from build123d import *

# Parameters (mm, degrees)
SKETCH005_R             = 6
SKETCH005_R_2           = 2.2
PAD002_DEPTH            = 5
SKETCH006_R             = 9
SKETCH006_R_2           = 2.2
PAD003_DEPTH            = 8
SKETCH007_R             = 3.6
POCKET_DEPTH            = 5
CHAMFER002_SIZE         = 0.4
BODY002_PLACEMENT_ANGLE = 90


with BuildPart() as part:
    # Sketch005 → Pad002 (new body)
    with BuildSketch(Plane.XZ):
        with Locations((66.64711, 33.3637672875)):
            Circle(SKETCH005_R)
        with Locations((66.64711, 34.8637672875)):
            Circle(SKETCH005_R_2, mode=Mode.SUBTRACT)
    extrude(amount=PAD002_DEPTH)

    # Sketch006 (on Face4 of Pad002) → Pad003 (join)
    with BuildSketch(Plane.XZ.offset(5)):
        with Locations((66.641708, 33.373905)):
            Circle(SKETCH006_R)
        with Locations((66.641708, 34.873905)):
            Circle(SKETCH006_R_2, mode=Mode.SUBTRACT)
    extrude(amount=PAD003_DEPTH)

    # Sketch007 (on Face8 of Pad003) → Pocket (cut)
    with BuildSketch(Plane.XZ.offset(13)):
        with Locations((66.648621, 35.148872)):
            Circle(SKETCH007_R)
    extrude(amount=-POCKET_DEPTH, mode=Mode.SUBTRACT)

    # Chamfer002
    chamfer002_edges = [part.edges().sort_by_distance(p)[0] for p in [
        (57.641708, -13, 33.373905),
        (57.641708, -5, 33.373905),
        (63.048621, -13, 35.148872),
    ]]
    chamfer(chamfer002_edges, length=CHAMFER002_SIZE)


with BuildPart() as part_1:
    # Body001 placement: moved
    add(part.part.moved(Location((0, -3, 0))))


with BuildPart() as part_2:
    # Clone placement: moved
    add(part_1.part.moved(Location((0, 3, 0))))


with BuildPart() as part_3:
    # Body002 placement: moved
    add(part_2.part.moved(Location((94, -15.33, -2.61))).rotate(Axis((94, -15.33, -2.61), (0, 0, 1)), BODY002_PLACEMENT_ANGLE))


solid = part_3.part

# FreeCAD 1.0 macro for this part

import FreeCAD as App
import Part
import Sketcher


def edges_at(feature, points):
    """Names of the edges that pass closest to the given points."""
    edges = feature.Shape.Edges
    near = lambda p: min(range(len(edges)), key=lambda i: edges[i].distToShape(Part.Vertex(*p))[0])
    return sorted({f"Edge{near(p) + 1}" for p in points})

doc = App.newDocument("Part")
body = doc.addObject("PartDesign::Body", "Body")

# Sketch on XZ plane
sketch1 = doc.addObject("Sketcher::SketchObject", "Sketch")
body.addObject(sketch1)
sketch1.AttachmentSupport = (doc.XZ_Plane, [""])
sketch1.MapMode = "FlatFace"
sketch1.addGeometry([
    Part.Circle(App.Vector(66.6, 33.4, 0), App.Vector(0, 0, 1), 6),
    Part.Circle(App.Vector(66.6, 34.9, 0), App.Vector(0, 0, 1), 2.2),
], False)
sketch1.addConstraint([
    Sketcher.Constraint("Vertical", 0, 3, 1, 3),
    Sketcher.Constraint("Diameter", 0, 12.0),
    Sketcher.Constraint("Diameter", 1, 4.4),
    Sketcher.Constraint("DistanceY", 0, 3, 1, 3, 1.5),
    Sketcher.Constraint("DistanceX", -1, 1, 0, 3, 66.64711),
    Sketcher.Constraint("DistanceY", -1, 1, 0, 3, 33.363767),
])
pad1 = doc.addObject("PartDesign::Pad", "Pad")
body.addObject(pad1)
pad1.Profile = sketch1
pad1.Length = 5

# Sketch on XZ plane
sketch2 = doc.addObject("Sketcher::SketchObject", "Sketch001")
body.addObject(sketch2)
sketch2.AttachmentSupport = (doc.XZ_Plane, [""])
sketch2.MapMode = "FlatFace"
sketch2.AttachmentOffset = App.Placement(App.Vector(0, 0, 5), App.Rotation())
sketch2.addGeometry([
    Part.Circle(App.Vector(66.6, 33.4, 0), App.Vector(0, 0, 1), 9),
    Part.Circle(App.Vector(66.6, 34.9, 0), App.Vector(0, 0, 1), 2.2),
], False)
sketch2.addConstraint([
    Sketcher.Constraint("Vertical", 0, 3, 1, 3),
    Sketcher.Constraint("Diameter", 0, 18.0),
    Sketcher.Constraint("Diameter", 1, 4.4),
    Sketcher.Constraint("DistanceY", 0, 3, 1, 3, 1.5),
    Sketcher.Constraint("DistanceX", -1, 1, 0, 3, 66.641708),
    Sketcher.Constraint("DistanceY", -1, 1, 0, 3, 33.373905),
])
pad2 = doc.addObject("PartDesign::Pad", "Pad001")
body.addObject(pad2)
pad2.Profile = sketch2
pad2.Length = 8

# Sketch on XZ plane
sketch3 = doc.addObject("Sketcher::SketchObject", "Sketch002")
body.addObject(sketch3)
sketch3.AttachmentSupport = (doc.XZ_Plane, [""])
sketch3.MapMode = "FlatFace"
sketch3.AttachmentOffset = App.Placement(App.Vector(0, 0, 13), App.Rotation())
sketch3.addGeometry(Part.Circle(App.Vector(66.6, 35.1, 0), App.Vector(0, 0, 1), 3.6), False)
sketch3.addConstraint([
    Sketcher.Constraint("Diameter", 0, 7.2),
    Sketcher.Constraint("DistanceX", -1, 1, 0, 3, 66.648621),
    Sketcher.Constraint("DistanceY", -1, 1, 0, 3, 35.148872),
])
pocket1 = doc.addObject("PartDesign::Pocket", "Pocket")
body.addObject(pocket1)
pocket1.Profile = sketch3
pocket1.Length = 5
doc.recompute()

chamfer = doc.addObject("PartDesign::Chamfer", "Chamfer")
body.addObject(chamfer)
chamfer.Base = (pocket1, edges_at(pocket1, [(57.642, -13, 33.374), (57.642, -5, 33.374), (63.049, -13, 35.149)]))
chamfer.Size = 0.4
body2 = doc.addObject("PartDesign::Body", "Body001")
doc.recompute()

body.Placement = App.Placement(App.Vector(0, -3, 0), App.Rotation(App.Vector(0, 0, 1), 0))
boolean = doc.addObject("PartDesign::Boolean", "Boolean")
body2.addObject(boolean)
boolean.Type = "Fuse"
boolean.addObjects([body])
body3 = doc.addObject("PartDesign::Body", "Body002")
doc.recompute()

body2.Placement = App.Placement(App.Vector(0, 3, 0), App.Rotation(App.Vector(0, 0, 1), 0))
boolean2 = doc.addObject("PartDesign::Boolean", "Boolean001")
body3.addObject(boolean2)
boolean2.Type = "Fuse"
boolean2.addObjects([body2])
body4 = doc.addObject("PartDesign::Body", "Body003")
doc.recompute()

body3.Placement = App.Placement(App.Vector(94, -15.33, -2.61), App.Rotation(App.Vector(0, 0, 1), 90))
boolean3 = doc.addObject("PartDesign::Boolean", "Boolean002")
body4.addObject(boolean3)
boolean3.Type = "Fuse"
boolean3.addObjects([body3])

doc.recompute()
